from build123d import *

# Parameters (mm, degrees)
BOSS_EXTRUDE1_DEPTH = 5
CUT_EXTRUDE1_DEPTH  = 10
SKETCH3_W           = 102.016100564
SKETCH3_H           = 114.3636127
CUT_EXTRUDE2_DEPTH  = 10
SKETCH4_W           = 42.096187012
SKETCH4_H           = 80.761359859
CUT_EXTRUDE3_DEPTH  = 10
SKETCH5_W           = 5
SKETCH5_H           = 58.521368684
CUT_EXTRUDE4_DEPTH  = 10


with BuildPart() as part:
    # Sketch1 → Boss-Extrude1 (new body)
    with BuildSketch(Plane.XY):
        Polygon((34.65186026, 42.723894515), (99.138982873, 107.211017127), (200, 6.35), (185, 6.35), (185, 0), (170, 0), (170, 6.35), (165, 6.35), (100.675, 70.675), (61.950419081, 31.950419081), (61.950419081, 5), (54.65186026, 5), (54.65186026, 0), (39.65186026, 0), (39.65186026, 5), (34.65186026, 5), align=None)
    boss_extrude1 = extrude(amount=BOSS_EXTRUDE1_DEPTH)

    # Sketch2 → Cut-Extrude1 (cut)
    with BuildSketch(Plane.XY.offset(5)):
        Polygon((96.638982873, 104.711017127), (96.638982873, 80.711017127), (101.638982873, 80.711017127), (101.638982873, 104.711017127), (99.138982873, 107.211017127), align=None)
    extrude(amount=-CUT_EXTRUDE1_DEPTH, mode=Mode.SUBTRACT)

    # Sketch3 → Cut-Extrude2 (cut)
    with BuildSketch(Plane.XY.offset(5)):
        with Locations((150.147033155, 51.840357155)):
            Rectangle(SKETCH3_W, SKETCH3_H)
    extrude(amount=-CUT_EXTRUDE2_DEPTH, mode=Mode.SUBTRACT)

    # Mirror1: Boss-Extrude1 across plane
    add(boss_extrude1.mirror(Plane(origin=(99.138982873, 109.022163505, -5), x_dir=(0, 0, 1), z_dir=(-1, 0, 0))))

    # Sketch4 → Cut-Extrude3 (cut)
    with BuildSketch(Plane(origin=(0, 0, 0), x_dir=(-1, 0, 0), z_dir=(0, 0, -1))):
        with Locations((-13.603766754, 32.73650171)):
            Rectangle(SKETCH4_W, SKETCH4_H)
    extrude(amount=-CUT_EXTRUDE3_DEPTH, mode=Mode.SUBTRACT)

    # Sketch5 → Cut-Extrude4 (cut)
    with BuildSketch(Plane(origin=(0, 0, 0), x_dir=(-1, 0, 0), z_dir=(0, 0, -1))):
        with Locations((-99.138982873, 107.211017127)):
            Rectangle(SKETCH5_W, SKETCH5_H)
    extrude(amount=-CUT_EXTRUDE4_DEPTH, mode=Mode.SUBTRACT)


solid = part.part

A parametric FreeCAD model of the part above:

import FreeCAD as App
import Part
import Sketcher
from FreeCAD import Vector
Q = App.Units.Quantity


def add_polygon(sketch, points):
    """Adds a closed chain of lines whose ends are joined by coincident constraints."""
    first, n = sketch.GeometryCount, len(points)
    for a, b in zip(points, points[1:] + points[:1]):
        sketch.addGeometry(Part.LineSegment(App.Vector(*a, 0), App.Vector(*b, 0)), False)
    for i in range(n):
        sketch.addConstraint(Sketcher.Constraint("Coincident", first + i, 2, first + (i + 1) % n, 1))

doc = App.newDocument("Part")
body = doc.addObject("PartDesign::Body", "Body")

sketch1 = body.newObject("Sketcher::SketchObject", "Sketch")
sketch1.AttachmentSupport = (doc.getObject("XY_Plane"), [""])
sketch1.MapMode = "FlatFace"
add_polygon(sketch1, [(99, 107), (35, 43), (35, 5), (40, 5), (40, 0), (55, 0), (55, 5), (62, 5), (62, 32), (101, 71), (165, 6), (170, 6), (170, 0), (185, 0), (185, 6), (200, 6)])
sketch1.addConstraint([
    Sketcher.Constraint("Vertical", 1),
    Sketcher.Constraint("Horizontal", 2),
    Sketcher.Constraint("Vertical", 3),
    Sketcher.Constraint("Horizontal", 4),
    Sketcher.Constraint("Vertical", 5),
    Sketcher.Constraint("Horizontal", 6),
    Sketcher.Constraint("Vertical", 7),
    Sketcher.Constraint("Horizontal", 10),
    Sketcher.Constraint("Vertical", 11),
    Sketcher.Constraint("Horizontal", 12),
    Sketcher.Constraint("Vertical", 13),
    Sketcher.Constraint("Horizontal", 14),
    Sketcher.Constraint("PointOnObject", 3, 2, -1),
    Sketcher.Constraint("PointOnObject", 11, 2, -1),
    Sketcher.Constraint("Parallel", 0, 8),
    Sketcher.Constraint("Perpendicular", 8, 9),
    Sketcher.Constraint("Parallel", 9, 15),
    Sketcher.Constraint("Horizontal", 2, 2, 5, 2),
    Sketcher.Constraint("Horizontal", 10, 2, 13, 2),
    Sketcher.Constraint("Equal", 2, 10),
    Sketcher.Constraint("Equal", 4, 12),
    Sketcher.Constraint("Equal", 12, 14),
    Sketcher.Constraint("Equal", 10, 3),
    Sketcher.Constraint("DistanceX", 2, 1, 2, 2, 5.0),
    Sketcher.Constraint("DistanceX", 4, 1, 4, 2, 15.0),
    Sketcher.Constraint("Angle", 0, Q("-135 deg")),
    Sketcher.Constraint("DistanceX", -1, 1, 9, 2, 165.0),
    Sketcher.Constraint("DistanceY", 11, 2, 11, 1, 6.35),
    Sketcher.Constraint("DistanceX", -1, 1, 8, 2, 100.675),
    Sketcher.Constraint("DistanceX", 6, 1, 6, 2, 7.298559),
    Sketcher.Constraint("DistanceY", 7, 1, 7, 2, 26.950419),
    Sketcher.Constraint("DistanceY", 7, 2, 15, 2, 75.260598),
])
pad1 = body.newObject("PartDesign::Pad", "Pad")
pad1.Profile = sketch1
pad1.Length = 5

sketch2 = body.newObject("Sketcher::SketchObject", "Sketch001")
sketch2.AttachmentSupport = (doc.getObject("XY_Plane"), [""])
sketch2.MapMode = "FlatFace"
sketch2.AttachmentOffset = App.Placement(Vector(0, 0, 5), App.Rotation())
add_polygon(sketch2, [(96.6, 104.7), (96.6, 80.7), (101.6, 80.7), (101.6, 104.7), (99.1, 107.2)])
sketch2.addConstraint([
    Sketcher.Constraint("Vertical", 0),
    Sketcher.Constraint("Horizontal", 1),
    Sketcher.Constraint("Vertical", 2),
    Sketcher.Constraint("Perpendicular", 3, 4),
    Sketcher.Constraint("Horizontal", 2, 2, 4, 2),
    Sketcher.Constraint("Equal", 3, 4),
    Sketcher.Constraint("DistanceX", 1, 1, 1, 2, 5.0),
    Sketcher.Constraint("DistanceY", 0, 2, 0, 1, 24.0),
    Sketcher.Constraint("DistanceX", -1, 1, 0, 2, 96.638983),
    Sketcher.Constraint("DistanceY", -1, 1, 0, 2, 80.711017),
])
pocket1 = body.newObject("PartDesign::Pocket", "Pocket")
pocket1.Profile = sketch2
pocket1.Length = 10

sketch3 = body.newObject("Sketcher::SketchObject", "Sketch002")
sketch3.AttachmentSupport = (doc.getObject("XY_Plane"), [""])
sketch3.MapMode = "FlatFace"
sketch3.AttachmentOffset = App.Placement(Vector(0, 0, 5), App.Rotation())
add_polygon(sketch3, [(99, 109), (99, -5), (201, -5), (201, 109)])
sketch3.addConstraint([
    Sketcher.Constraint("Vertical", 0),
    Sketcher.Constraint("Horizontal", 1),
    Sketcher.Constraint("Vertical", 2),
    Sketcher.Constraint("Horizontal", 3),
    Sketcher.Constraint("DistanceX", 1, 1, 1, 2, 102.016101),
    Sketcher.Constraint("DistanceY", 0, 2, 0, 1, 114.363613),
    Sketcher.Constraint("DistanceY", 0, 2, -1, 1, 5.341449),
    Sketcher.Constraint("DistanceX", -1, 1, 0, 2, 99.138983),
])
pocket2 = body.newObject("PartDesign::Pocket", "Pocket001")
pocket2.Profile = sketch3
pocket2.Length = 10
doc.recompute()

datumplane = body.newObject("PartDesign::Plane", "DatumPlane")
datumplane.AttachmentSupport = (doc.getObject("YZ_Plane"), [""])
datumplane.MapMode = "FlatFace"
datumplane.AttachmentOffset = App.Placement(Vector(0, 0, 99.138983), App.Rotation())
mirrored = body.newObject("PartDesign::Mirrored", "Mirrored")
mirrored.Originals = [pad1]
mirrored.MirrorPlane = (datumplane, [""])
body.Tip = mirrored

sketch4 = body.newObject("Sketcher::SketchObject", "Sketch003")
sketch4.AttachmentSupport = (doc.getObject("XY_Plane"), [""])
sketch4.MapMode = "FlatFace"
add_polygon(sketch4, [(35, 73), (35, -8), (-7, -8), (-7, 73)])
sketch4.addConstraint([
    Sketcher.Constraint("Vertical", 0),
    Sketcher.Constraint("Horizontal", 1),
    Sketcher.Constraint("Vertical", 2),
    Sketcher.Constraint("Horizontal", 3),
    Sketcher.Constraint("DistanceY", 0, 2, 0, 1, 80.76136),
    Sketcher.Constraint("DistanceX", 1, 2, 1, 1, 42.096187),
    Sketcher.Constraint("DistanceX", -1, 1, 0, 2, 34.65186),
    Sketcher.Constraint("DistanceY", 0, 2, -1, 1, 7.644178),
])
pocket3 = body.newObject("PartDesign::Pocket", "Pocket002")
pocket3.Profile = sketch4
pocket3.Length = 10
pocket3.Reversed = True

sketch5 = body.newObject("Sketcher::SketchObject", "Sketch004")
sketch5.AttachmentSupport = (doc.getObject("XY_Plane"), [""])
sketch5.MapMode = "FlatFace"
add_polygon(sketch5, [(102, 136), (102, 78), (97, 78), (97, 136)])
sketch5.addConstraint([
    Sketcher.Constraint("Vertical", 0),
    Sketcher.Constraint("Horizontal", 1),
    Sketcher.Constraint("Vertical", 2),
    Sketcher.Constraint("Horizontal", 3),
    Sketcher.Constraint("DistanceX", 1, 2, 1, 1, 5.0),
    Sketcher.Constraint("DistanceY", 0, 2, 0, 1, 58.521369),
    Sketcher.Constraint("DistanceY", -1, 1, 2, 2, 136.471701),
    Sketcher.Constraint("DistanceX", -1, 1, 0, 2, 101.638983),
])
pocket4 = body.newObject("PartDesign::Pocket", "Pocket003")
pocket4.Profile = sketch5
pocket4.Length = 10
pocket4.Reversed = True

doc.recompute()
